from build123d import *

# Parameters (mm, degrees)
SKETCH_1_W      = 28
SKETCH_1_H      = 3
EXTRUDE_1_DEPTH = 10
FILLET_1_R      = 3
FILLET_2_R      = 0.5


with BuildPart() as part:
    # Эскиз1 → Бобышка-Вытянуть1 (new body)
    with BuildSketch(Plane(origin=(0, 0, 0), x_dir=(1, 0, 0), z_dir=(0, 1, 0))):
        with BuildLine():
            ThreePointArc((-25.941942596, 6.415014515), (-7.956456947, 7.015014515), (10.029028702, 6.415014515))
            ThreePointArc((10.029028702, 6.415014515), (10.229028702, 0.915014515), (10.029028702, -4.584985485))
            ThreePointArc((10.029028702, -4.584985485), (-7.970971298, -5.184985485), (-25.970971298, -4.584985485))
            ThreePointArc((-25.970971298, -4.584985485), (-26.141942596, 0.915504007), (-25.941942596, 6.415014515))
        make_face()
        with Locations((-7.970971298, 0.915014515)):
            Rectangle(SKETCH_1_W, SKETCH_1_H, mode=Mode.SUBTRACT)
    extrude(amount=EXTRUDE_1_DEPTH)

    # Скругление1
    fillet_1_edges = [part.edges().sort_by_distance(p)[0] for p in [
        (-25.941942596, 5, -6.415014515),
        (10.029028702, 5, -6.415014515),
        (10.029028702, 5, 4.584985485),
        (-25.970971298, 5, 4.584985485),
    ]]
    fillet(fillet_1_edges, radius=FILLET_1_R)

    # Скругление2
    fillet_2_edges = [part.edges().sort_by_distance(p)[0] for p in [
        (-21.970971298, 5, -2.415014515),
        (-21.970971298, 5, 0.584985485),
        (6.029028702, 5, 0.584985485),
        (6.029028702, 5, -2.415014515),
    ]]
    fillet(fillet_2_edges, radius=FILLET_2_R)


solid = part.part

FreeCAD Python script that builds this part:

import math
import FreeCAD as App
import Part
import Sketcher

V = App.Vector
Q = App.Units.Quantity


def edges_at(feature, points):
    """Names of the edges that pass closest to the given points."""
    edges = feature.Shape.Edges
    near = lambda p: min(range(len(edges)), key=lambda i: edges[i].distToShape(Part.Vertex(*p))[0])
    return sorted({f"Edge{near(p) + 1}" for p in points})

doc = App.newDocument("Part")
params = doc.addObject("Spreadsheet::Sheet", "Params")
for row, (alias, value) in enumerate([
    ("sketch1_radius", "270.3 mm"),
    ("sketch1_width", "28 mm"),
    ("sketch1_height", "3 mm"),
    ("pad1_length", "10 mm"),
    ("fillet_radius", "3 mm"),
    ("fillet2_radius", "0.5 mm"),
], start=1):
    params.set(f"A{row}", alias)
    params.set(f"B{row}", "=" + value)
    params.setAlias(f"B{row}", alias)

body = doc.addObject("PartDesign::Body", "Body")

# Sketch on XZ plane
sketch1 = body.newObject("Sketcher::SketchObject", "Sketch")
sketch1.AttachmentSupport = (doc.getObject("XZ_Plane"), [""])
sketch1.MapMode = "FlatFace"
sketch1.addGeometry([
    Part.ArcOfCircle(Part.Circle(V(-8, 262.8, 0), V(0, 0, 1), 269.9), math.radians(-93.82), math.radians(-86.18)),  # 0
    Part.ArcOfCircle(Part.Circle(V(55.5, -0.7, 0), V(0, 0, 1), 81.6), math.radians(176.29), math.radians(184.01)),  # 1
    Part.ArcOfCircle(Part.Circle(V(-8, -265.1, 0), V(0, 0, 1), 270.3), math.radians(86.18), math.radians(93.82)),  # 2
    Part.ArcOfCircle(Part.Circle(V(-65.5, -0.9, 0), V(0, 0, 1), 75.7), math.radians(-4.17), math.radians(4.17)),  # 3
    Part.LineSegment(V(-22, 0.6, 0), V(-22, -2.4, 0)),  # 4
    Part.LineSegment(V(-22, -2.4, 0), V(6, -2.4, 0)),  # 5
    Part.LineSegment(V(6, -2.4, 0), V(6, 0.6, 0)),  # 6
    Part.LineSegment(V(6, 0.6, 0), V(-22, 0.6, 0)),  # 7
], False)
sketch1.addConstraint([
    Sketcher.Constraint("Coincident", 0, 1, 1, 2),
    Sketcher.Constraint("Coincident", 1, 1, 2, 2),
    Sketcher.Constraint("Coincident", 2, 1, 3, 2),
    Sketcher.Constraint("Coincident", 3, 1, 0, 2),
    Sketcher.Constraint("Coincident", 4, 2, 5, 1),
    Sketcher.Constraint("Coincident", 5, 2, 6, 1),
    Sketcher.Constraint("Coincident", 6, 2, 7, 1),
    Sketcher.Constraint("Coincident", 7, 2, 4, 1),
    Sketcher.Constraint("Vertical", 4),
    Sketcher.Constraint("Horizontal", 5),
    Sketcher.Constraint("Vertical", 6),
    Sketcher.Constraint("Horizontal", 7),
    Sketcher.Constraint("Horizontal", 1, 1, 2, 1),
    Sketcher.Constraint("Horizontal", 0, 1, 3, 1),
    Sketcher.Constraint("Radius", 2, Q("270.3 mm")),
    Sketcher.Constraint("DistanceX", 5, 1, 5, 2, Q("28 mm")),
    Sketcher.Constraint("DistanceY", 4, 2, 4, 1, Q("3 mm")),
    Sketcher.Constraint("Radius", 3, Q("75.725 mm")),
    Sketcher.Constraint("DistanceY", 0, 1, 1, 1, Q("11 mm")),
    Sketcher.Constraint("DistanceX", 1, 1, 2, 3, Q("18 mm")),
    Sketcher.Constraint("DistanceX", 1, 1, 3, 1, Q("36 mm")),
    Sketcher.Constraint("DistanceY", 0, 1, 4, 2, Q("4 mm")),
    Sketcher.Constraint("DistanceX", 1, 1, 4, 2, Q("4 mm")),
    Sketcher.Constraint("Radius", 0, Q("269.864745 mm")),
    Sketcher.Constraint("Radius", 1, Q("81.635724 mm")),
    Sketcher.Constraint("DistanceY", 1, 3, 0, 3, Q("263.549801 mm")),
    Sketcher.Constraint("DistanceY", -1, 1, 0, 3, Q("262.849731 mm")),
    Sketcher.Constraint("DistanceX", 2, 3, -1, 1, Q("7.970971 mm")),
])
sketch1.setExpression("Constraints[14]", "Params.sketch1_radius")
sketch1.setExpression("Constraints[15]", "Params.sketch1_width")
sketch1.setExpression("Constraints[16]", "Params.sketch1_height")
pad1 = body.newObject("PartDesign::Pad", "Pad")
pad1.Profile = sketch1
pad1.setExpression("Length", "Params.pad1_length")
pad1.Reversed = True
doc.recompute()

fillet = body.newObject("PartDesign::Fillet", "Fillet")
fillet.Base = (pad1, edges_at(pad1, [
    (-25.942, 5, -6.415),
    (10.029, 5, -6.415),
    (10.029, 5, 4.585),
    (-25.971, 5, 4.585),
]))
fillet.setExpression("Radius", "Params.fillet_radius")
doc.recompute()

fillet2 = body.newObject("PartDesign::Fillet", "Fillet001")
fillet2.Base = (fillet, edges_at(fillet, [
    (-21.971, 5, -2.415),
    (-21.971, 5, 0.585),
    (6.029, 5, 0.585),
    (6.029, 5, -2.415),
]))
fillet2.setExpression("Radius", "Params.fillet2_radius")

doc.recompute()
